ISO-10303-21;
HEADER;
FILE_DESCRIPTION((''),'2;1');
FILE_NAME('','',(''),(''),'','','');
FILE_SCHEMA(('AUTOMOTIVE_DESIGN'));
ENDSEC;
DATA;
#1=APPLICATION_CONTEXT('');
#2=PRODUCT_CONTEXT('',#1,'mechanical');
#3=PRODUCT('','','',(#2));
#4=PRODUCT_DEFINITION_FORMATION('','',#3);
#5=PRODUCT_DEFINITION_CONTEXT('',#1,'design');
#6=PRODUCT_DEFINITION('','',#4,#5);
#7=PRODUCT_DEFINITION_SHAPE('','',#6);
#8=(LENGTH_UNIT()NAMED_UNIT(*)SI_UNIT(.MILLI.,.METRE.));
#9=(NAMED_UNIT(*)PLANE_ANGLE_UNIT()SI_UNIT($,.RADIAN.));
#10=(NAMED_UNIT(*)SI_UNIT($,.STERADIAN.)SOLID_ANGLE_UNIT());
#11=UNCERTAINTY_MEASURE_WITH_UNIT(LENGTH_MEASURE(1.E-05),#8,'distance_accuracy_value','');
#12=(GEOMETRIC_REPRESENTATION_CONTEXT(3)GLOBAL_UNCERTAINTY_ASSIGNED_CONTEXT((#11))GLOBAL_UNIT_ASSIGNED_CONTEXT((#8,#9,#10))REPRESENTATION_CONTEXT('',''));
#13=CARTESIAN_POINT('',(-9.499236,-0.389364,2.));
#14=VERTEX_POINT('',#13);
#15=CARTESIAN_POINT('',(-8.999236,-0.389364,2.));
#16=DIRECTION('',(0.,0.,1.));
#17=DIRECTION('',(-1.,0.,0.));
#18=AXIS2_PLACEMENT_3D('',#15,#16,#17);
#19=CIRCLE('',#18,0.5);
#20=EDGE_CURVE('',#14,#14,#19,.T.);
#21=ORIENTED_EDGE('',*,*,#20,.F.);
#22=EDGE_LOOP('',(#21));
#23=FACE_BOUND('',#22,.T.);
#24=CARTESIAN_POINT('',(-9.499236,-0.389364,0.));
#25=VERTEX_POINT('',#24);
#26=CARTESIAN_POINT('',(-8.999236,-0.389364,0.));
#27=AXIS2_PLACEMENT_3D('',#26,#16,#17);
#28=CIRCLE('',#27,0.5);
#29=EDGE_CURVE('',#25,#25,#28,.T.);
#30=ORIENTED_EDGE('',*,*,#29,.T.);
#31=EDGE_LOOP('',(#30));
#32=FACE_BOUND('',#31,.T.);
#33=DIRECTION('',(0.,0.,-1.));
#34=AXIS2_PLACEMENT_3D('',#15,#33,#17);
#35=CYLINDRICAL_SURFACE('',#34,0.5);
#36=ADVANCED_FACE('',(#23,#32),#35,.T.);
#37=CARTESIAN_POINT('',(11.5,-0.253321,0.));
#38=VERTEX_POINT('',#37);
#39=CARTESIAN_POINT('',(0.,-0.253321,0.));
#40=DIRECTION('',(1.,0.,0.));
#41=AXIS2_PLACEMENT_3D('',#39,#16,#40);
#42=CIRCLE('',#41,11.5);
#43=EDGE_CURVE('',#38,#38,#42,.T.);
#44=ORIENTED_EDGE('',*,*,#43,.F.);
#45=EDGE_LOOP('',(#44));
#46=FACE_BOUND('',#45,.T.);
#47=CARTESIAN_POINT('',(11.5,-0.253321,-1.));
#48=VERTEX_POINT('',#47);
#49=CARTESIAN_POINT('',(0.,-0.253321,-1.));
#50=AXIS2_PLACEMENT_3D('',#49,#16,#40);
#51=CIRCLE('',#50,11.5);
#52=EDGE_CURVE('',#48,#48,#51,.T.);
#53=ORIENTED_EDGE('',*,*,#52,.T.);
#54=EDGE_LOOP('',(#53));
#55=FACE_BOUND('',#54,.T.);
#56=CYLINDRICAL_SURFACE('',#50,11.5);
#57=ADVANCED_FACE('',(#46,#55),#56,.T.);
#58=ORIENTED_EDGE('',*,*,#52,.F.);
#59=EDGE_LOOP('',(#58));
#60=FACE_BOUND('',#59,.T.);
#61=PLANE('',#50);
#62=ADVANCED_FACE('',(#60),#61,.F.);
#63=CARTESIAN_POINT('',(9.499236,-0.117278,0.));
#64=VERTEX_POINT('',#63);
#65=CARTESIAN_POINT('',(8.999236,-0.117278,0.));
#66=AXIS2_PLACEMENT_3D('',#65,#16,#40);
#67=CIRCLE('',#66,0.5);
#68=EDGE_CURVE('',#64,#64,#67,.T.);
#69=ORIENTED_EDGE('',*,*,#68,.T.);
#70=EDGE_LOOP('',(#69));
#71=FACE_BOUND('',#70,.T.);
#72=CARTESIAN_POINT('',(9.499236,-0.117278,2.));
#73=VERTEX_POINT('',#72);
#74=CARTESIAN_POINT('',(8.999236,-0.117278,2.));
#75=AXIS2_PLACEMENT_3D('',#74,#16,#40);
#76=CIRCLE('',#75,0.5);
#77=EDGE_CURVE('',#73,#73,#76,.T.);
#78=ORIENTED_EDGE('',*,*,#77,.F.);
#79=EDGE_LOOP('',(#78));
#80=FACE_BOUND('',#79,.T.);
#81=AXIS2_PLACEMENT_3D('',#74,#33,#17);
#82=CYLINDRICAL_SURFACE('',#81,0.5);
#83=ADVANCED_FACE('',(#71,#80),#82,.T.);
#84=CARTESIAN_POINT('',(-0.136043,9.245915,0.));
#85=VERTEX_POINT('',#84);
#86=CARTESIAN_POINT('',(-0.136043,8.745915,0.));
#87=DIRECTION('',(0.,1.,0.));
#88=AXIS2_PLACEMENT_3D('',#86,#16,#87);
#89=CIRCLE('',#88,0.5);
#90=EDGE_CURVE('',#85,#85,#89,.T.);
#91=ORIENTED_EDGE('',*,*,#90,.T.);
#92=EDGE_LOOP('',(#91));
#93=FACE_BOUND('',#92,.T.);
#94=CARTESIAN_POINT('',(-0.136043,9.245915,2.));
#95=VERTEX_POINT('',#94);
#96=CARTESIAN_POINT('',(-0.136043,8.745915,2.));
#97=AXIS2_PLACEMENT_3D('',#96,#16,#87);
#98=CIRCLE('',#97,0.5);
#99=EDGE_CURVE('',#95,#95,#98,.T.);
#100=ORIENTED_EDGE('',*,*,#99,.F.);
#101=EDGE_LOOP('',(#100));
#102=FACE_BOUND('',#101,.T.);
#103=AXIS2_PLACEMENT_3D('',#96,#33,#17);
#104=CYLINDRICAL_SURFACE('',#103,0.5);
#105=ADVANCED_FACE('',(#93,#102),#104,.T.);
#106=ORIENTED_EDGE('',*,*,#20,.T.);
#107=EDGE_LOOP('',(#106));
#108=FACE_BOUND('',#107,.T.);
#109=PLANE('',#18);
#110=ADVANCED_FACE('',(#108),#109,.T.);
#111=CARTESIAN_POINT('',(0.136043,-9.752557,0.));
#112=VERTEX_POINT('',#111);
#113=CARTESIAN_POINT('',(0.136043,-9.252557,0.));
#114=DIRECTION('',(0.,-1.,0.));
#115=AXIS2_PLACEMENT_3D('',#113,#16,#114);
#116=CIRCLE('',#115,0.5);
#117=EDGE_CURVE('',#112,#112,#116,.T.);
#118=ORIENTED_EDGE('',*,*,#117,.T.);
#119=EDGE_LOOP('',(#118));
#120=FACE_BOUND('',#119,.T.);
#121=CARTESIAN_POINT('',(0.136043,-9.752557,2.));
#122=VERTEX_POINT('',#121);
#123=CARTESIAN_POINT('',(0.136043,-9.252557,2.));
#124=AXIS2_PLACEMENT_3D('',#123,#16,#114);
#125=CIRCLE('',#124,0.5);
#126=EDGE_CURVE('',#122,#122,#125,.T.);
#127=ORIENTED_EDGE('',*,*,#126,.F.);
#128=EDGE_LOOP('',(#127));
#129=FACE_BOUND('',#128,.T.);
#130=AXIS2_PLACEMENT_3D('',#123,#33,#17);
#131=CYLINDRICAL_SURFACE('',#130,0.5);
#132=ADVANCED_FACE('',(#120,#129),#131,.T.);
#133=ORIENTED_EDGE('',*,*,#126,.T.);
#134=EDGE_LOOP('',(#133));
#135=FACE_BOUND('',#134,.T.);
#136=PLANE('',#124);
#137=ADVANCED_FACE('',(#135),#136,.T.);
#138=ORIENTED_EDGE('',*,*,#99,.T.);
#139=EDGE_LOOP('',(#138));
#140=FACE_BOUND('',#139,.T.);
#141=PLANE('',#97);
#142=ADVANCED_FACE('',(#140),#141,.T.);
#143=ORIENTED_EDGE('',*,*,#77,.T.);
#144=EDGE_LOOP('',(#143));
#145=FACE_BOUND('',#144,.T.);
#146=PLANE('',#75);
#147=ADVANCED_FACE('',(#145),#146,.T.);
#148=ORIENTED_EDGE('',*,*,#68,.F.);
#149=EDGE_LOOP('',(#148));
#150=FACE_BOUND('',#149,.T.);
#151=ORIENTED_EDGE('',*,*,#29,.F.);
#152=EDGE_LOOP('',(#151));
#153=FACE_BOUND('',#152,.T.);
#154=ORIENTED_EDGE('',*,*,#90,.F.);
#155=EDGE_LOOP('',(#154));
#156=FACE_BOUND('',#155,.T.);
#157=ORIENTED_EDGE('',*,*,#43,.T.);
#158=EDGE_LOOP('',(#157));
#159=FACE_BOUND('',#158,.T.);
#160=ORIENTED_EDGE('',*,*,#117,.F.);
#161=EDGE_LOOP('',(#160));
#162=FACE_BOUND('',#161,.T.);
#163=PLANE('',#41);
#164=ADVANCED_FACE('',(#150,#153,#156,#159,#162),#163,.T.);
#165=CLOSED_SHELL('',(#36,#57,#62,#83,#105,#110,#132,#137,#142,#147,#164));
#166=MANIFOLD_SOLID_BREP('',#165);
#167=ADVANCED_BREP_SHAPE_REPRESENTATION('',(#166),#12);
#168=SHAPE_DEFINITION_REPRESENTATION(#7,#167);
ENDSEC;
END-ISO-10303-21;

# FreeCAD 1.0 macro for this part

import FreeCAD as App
import Part
import Sketcher
from FreeCAD import Vector
Q = App.Units.Quantity

doc = App.newDocument("Part")
body = doc.addObject("PartDesign::Body", "Body")

sketch1 = body.newObject("Sketcher::SketchObject", "Sketch")
sketch1.AttachmentSupport = (doc.getObject("XY_Plane"), [""])
sketch1.MapMode = "FlatFace"
sketch1.addGeometry(Part.Circle(Vector(0, -0.253321, 0), Vector(0, 0, 1), 11.5), False)
sketch1.addConstraint([
    Sketcher.Constraint("PointOnObject", 0, 3, -2),
    Sketcher.Constraint("Diameter", 0, Q("23 mm")),
    Sketcher.Constraint("DistanceY", 0, 3, -1, 1, Q("0.253321 mm")),
])
pad1 = body.newObject("PartDesign::Pad", "Pad")
pad1.Profile = sketch1
pad1.Length = 1
pad1.Reversed = True

sketch2 = body.newObject("Sketcher::SketchObject", "Sketch001")
sketch2.AttachmentSupport = (doc.getObject("XY_Plane"), [""])
sketch2.MapMode = "FlatFace"
sketch2.addGeometry(Part.Circle(Vector(8.999236, -0.117278, 0), Vector(0, 0, 1), 0.5), False)
sketch2.addConstraint([
    Sketcher.Constraint("Diameter", 0, Q("1 mm")),
    Sketcher.Constraint("DistanceX", -1, 1, 0, 3, Q("8.999236 mm")),
    Sketcher.Constraint("DistanceY", 0, 3, -1, 1, Q("0.117278 mm")),
])
pad2 = body.newObject("PartDesign::Pad", "Pad001")
pad2.Profile = sketch2
pad2.Length = 2
doc.recompute()

datumline = body.newObject("PartDesign::Line", "DatumLine")
datumline.Placement = App.Placement(Vector(0, -0.253321, 0), App.Rotation(Vector(0, 0, 1), Vector(0, 0, 1)))
polarpattern = body.newObject("PartDesign::PolarPattern", "PolarPattern")
polarpattern.Originals = [pad2]
polarpattern.Axis = (datumline, [""])
polarpattern.Angle = 360
polarpattern.Occurrences = 4
body.Tip = polarpattern

doc.recompute()
